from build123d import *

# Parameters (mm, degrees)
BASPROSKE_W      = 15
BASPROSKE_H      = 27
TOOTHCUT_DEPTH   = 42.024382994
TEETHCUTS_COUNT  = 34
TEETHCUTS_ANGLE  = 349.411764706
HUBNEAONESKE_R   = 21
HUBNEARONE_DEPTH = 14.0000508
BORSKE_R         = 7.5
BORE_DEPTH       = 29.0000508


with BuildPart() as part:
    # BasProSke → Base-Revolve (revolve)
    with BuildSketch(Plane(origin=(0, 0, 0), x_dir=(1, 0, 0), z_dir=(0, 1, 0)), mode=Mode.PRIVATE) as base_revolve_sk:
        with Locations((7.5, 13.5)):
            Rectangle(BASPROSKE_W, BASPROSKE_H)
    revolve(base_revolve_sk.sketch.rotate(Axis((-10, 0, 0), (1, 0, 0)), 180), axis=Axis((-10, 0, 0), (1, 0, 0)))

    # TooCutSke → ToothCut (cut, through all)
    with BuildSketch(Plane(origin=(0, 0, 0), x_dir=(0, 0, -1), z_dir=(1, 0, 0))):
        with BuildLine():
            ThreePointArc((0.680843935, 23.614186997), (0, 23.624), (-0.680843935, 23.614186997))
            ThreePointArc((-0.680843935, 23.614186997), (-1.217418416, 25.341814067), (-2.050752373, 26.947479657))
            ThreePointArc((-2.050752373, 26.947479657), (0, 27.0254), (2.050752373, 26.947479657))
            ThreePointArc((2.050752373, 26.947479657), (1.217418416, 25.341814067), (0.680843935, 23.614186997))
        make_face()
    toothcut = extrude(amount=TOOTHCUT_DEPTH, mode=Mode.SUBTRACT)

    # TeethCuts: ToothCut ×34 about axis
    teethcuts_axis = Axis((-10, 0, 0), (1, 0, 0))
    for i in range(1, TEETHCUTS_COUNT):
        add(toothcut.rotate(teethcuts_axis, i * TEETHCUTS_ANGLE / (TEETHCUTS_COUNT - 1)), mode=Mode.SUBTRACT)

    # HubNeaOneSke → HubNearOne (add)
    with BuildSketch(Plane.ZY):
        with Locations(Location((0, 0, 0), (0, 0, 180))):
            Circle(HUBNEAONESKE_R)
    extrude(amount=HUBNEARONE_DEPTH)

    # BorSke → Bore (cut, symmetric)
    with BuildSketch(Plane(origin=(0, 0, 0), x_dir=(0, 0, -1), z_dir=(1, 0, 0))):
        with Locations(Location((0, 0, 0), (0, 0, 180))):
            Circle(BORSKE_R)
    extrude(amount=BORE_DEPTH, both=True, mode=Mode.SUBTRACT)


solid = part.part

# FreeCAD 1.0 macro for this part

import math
import FreeCAD as App
import Part
import Sketcher

V = App.Vector
Q = App.Units.Quantity

doc = App.newDocument("Part")
body = doc.addObject("PartDesign::Body", "Body")

sketch1 = body.newObject("Sketcher::SketchObject", "Sketch")
sketch1.AttachmentSupport = (doc.getObject("XZ_Plane"), [""])
sketch1.MapMode = "FlatFace"
sketch1.addGeometry([
    Part.LineSegment(V(0, -27, 0), V(0, 0, 0)),
    Part.LineSegment(V(0, 0, 0), V(15, 0, 0)),
    Part.LineSegment(V(15, 0, 0), V(15, -27, 0)),
    Part.LineSegment(V(15, -27, 0), V(0, -27, 0)),
], False)
sketch1.addConstraint([
    Sketcher.Constraint("Coincident", 0, 2, 1, 1),
    Sketcher.Constraint("Coincident", 1, 2, 2, 1),
    Sketcher.Constraint("Coincident", 2, 2, 3, 1),
    Sketcher.Constraint("Coincident", 3, 2, 0, 1),
    Sketcher.Constraint("Vertical", 0),
    Sketcher.Constraint("Horizontal", 1),
    Sketcher.Constraint("Vertical", 2),
    Sketcher.Constraint("Horizontal", 3),
    Sketcher.Constraint("Coincident", 0, 2, -1, 1),
    Sketcher.Constraint("DistanceX", 1, 1, 1, 2, Q("15 mm")),
    Sketcher.Constraint("DistanceY", 0, 1, 0, 2, Q("27 mm")),
])
revolution = body.newObject("PartDesign::Revolution", "Revolution")
revolution.Profile = sketch1
revolution.ReferenceAxis = (sketch1, ["H_Axis"])
revolution.Angle = 360

sketch2 = body.newObject("Sketcher::SketchObject", "Sketch001")
sketch2.AttachmentSupport = (doc.getObject("YZ_Plane"), [""])
sketch2.MapMode = "FlatFace"
sketch2.addGeometry([
    Part.ArcOfCircle(Part.Circle(V(0, 0, 0), V(0, 0, 1), 23.6), math.radians(-1.65), math.radians(1.65)),
    Part.ArcOfCircle(Part.Circle(V(21.5, -10.7, 0), V(0, 0, 1), 10.2), math.radians(57), math.radians(78)),
    Part.ArcOfCircle(Part.Circle(V(0, 0, 0), V(0, 0, 1), 27), math.radians(-4.35), math.radians(4.35)),
    Part.ArcOfCircle(Part.Circle(V(21.5, 10.7, 0), V(0, 0, 1), 10.2), math.radians(-78), math.radians(-57)),
], False)
sketch2.addConstraint([
    Sketcher.Constraint("Coincident", 0, 1, 1, 2),
    Sketcher.Constraint("Coincident", 1, 1, 2, 1),
    Sketcher.Constraint("Coincident", 2, 2, 3, 2),
    Sketcher.Constraint("Coincident", 3, 1, 0, 2),
    Sketcher.Constraint("Coincident", 0, 3, -1, 1),
    Sketcher.Constraint("Coincident", 2, 3, -1, 1),
    Sketcher.Constraint("Equal", 1, 3),
    Sketcher.Constraint("Symmetric", 1, 3, 3, 3, -1),
    Sketcher.Constraint("Radius", 1, Q("10.2 mm")),
    Sketcher.Constraint("Radius", 0, Q("23.624 mm")),
    Sketcher.Constraint("Radius", 2, Q("27.0254 mm")),
    Sketcher.Constraint("DistanceY", 1, 1, 3, 3, Q("12.7025 mm")),
    Sketcher.Constraint("DistanceX", -1, 1, 2, 2, Q("26.94748 mm")),
])
pocket1 = body.newObject("PartDesign::Pocket", "Pocket")
pocket1.Profile = sketch2
pocket1.Type = "ThroughAll"
pocket1.Reversed = True
doc.recompute()

polarpattern = body.newObject("PartDesign::PolarPattern", "PolarPattern")
polarpattern.Originals = [pocket1]
polarpattern.Axis = (doc.getObject("X_Axis"), [""])
polarpattern.Angle = 360
polarpattern.Occurrences = 34
body.Tip = polarpattern

sketch3 = body.newObject("Sketcher::SketchObject", "Sketch002")
sketch3.AttachmentSupport = (doc.getObject("YZ_Plane"), [""])
sketch3.MapMode = "FlatFace"
sketch3.addGeometry(Part.Circle(V(0, 0, 0), V(0, 0, 1), 21), False)
sketch3.addConstraint([
    Sketcher.Constraint("Coincident", 0, 3, -1, 1),
    Sketcher.Constraint("Diameter", 0, Q("42 mm")),
])
pad1 = body.newObject("PartDesign::Pad", "Pad")
pad1.Profile = sketch3
pad1.Length = 14.000051
pad1.Reversed = True

sketch4 = body.newObject("Sketcher::SketchObject", "Sketch003")
sketch4.AttachmentSupport = (doc.getObject("YZ_Plane"), [""])
sketch4.MapMode = "FlatFace"
sketch4.addGeometry(Part.Circle(V(0, 0, 0), V(0, 0, 1), 8), False)
sketch4.addConstraint([
    Sketcher.Constraint("Coincident", 0, 3, -1, 1),
    Sketcher.Constraint("Diameter", 0, Q("15 mm")),
])
pocket2 = body.newObject("PartDesign::Pocket", "Pocket001")
pocket2.Profile = sketch4
pocket2.Length = 58.000102
pocket2.Midplane = True

doc.recompute()
